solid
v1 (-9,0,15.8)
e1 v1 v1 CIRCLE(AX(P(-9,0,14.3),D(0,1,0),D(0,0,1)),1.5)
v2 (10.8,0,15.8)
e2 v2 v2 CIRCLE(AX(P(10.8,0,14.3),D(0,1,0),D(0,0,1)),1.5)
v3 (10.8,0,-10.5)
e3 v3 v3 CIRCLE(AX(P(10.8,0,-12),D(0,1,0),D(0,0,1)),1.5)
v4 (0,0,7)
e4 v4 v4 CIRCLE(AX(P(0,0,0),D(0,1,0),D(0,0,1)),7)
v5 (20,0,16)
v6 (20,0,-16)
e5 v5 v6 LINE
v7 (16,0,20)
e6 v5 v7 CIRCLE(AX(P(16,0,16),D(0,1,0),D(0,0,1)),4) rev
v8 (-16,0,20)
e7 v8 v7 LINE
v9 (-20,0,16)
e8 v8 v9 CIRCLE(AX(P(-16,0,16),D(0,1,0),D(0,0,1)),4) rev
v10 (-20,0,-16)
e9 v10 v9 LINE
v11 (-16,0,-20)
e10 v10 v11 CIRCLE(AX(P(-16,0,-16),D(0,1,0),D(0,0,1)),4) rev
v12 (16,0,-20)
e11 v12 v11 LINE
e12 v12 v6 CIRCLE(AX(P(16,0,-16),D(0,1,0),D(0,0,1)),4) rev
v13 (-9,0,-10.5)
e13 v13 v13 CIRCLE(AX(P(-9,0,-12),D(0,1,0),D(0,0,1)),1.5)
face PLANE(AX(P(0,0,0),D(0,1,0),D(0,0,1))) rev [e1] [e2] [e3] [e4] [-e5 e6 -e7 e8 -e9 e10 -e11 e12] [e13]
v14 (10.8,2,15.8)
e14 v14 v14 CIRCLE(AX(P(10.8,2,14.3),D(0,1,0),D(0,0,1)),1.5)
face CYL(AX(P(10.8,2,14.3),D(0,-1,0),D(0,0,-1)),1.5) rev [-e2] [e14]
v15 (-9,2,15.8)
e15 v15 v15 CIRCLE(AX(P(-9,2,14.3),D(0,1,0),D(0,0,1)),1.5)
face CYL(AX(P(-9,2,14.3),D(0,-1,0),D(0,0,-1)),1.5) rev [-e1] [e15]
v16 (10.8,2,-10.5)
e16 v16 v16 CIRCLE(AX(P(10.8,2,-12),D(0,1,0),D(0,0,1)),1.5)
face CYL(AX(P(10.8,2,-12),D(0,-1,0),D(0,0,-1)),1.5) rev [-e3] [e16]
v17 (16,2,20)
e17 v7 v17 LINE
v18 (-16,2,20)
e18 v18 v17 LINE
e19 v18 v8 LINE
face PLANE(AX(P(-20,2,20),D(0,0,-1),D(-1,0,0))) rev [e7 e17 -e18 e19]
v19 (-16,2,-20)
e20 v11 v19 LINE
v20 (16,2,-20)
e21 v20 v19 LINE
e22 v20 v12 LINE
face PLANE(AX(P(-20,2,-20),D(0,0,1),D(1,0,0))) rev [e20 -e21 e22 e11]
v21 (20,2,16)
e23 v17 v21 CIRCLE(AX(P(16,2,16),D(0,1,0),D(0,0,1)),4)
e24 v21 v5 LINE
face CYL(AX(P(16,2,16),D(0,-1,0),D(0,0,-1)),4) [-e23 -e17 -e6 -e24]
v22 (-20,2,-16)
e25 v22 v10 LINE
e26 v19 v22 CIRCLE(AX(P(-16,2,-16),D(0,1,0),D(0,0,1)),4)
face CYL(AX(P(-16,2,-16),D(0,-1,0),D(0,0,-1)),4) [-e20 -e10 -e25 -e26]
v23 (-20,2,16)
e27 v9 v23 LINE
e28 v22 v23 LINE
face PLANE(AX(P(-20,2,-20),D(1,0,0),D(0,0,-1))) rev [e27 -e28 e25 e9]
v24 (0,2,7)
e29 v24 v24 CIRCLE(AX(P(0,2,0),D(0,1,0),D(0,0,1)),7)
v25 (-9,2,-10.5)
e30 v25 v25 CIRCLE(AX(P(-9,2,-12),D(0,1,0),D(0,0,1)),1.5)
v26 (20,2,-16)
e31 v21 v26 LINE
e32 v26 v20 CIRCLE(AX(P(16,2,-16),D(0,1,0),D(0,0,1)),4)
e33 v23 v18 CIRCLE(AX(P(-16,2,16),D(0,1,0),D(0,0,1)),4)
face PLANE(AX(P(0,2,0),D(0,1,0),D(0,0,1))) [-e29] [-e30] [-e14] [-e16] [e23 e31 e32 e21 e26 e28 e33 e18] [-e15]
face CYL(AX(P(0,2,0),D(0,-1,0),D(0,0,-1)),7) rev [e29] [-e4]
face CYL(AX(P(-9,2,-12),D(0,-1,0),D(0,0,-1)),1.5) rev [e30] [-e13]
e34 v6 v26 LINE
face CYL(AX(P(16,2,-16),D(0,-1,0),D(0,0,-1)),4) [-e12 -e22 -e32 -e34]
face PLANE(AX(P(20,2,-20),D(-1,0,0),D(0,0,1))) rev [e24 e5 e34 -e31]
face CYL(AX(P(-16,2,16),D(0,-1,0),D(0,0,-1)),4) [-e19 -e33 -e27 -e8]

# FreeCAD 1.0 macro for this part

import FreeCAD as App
import Part
import Sketcher

V = App.Vector


def edges_at(feature, points):
    """Names of the edges that pass closest to the given points."""
    edges = feature.Shape.Edges
    near = lambda p: min(range(len(edges)), key=lambda i: edges[i].distToShape(Part.Vertex(*p))[0])
    return sorted({f"Edge{near(p) + 1}" for p in points})

doc = App.newDocument("Part")
body = doc.addObject("PartDesign::Body", "Body")

# Sketch on XZ plane
sketch1 = body.newObject("Sketcher::SketchObject", "Sketch")
sketch1.AttachmentSupport = (doc.getObject("XZ_Plane"), [""])
sketch1.MapMode = "FlatFace"
sketch1.addGeometry([
    Part.LineSegment(V(-20, -20, 0), V(-20, 20, 0)),  # 0
    Part.LineSegment(V(-20, 20, 0), V(20, 20, 0)),  # 1
    Part.LineSegment(V(20, 20, 0), V(20, -20, 0)),  # 2
    Part.LineSegment(V(20, -20, 0), V(-20, -20, 0)),  # 3
    Part.Circle(V(-9, 14.3, 0), V(0, 0, 1), 1.5),  # 4
    Part.Circle(V(10.8, 14.3, 0), V(0, 0, 1), 1.5),  # 5
    Part.Circle(V(0, 0, 0), V(0, 0, 1), 7),  # 6
    Part.Circle(V(-9, -12, 0), V(0, 0, 1), 1.5),  # 7
    Part.Circle(V(10.8, -12, 0), V(0, 0, 1), 1.5),  # 8
], False)
sketch1.addConstraint([
    Sketcher.Constraint("Coincident", 0, 2, 1, 1),
    Sketcher.Constraint("Coincident", 1, 2, 2, 1),
    Sketcher.Constraint("Coincident", 2, 2, 3, 1),
    Sketcher.Constraint("Coincident", 3, 2, 0, 1),
    Sketcher.Constraint("Vertical", 0),
    Sketcher.Constraint("Horizontal", 1),
    Sketcher.Constraint("Vertical", 2),
    Sketcher.Constraint("Horizontal", 3),
    Sketcher.Constraint("Coincident", 6, 3, -1, 1),
    Sketcher.Constraint("Equal", 4, 5),
    Sketcher.Constraint("Equal", 5, 7),
    Sketcher.Constraint("Equal", 7, 8),
    Sketcher.Constraint("Symmetric", 0, 2, 2, 2, -1, 1),
    Sketcher.Constraint("Horizontal", 4, 3, 5, 3),
    Sketcher.Constraint("Horizontal", 7, 3, 8, 3),
    Sketcher.Constraint("Vertical", 4, 3, 7, 3),
    Sketcher.Constraint("Vertical", 5, 3, 8, 3),
    Sketcher.Constraint("Equal", 3, 0),
    Sketcher.Constraint("Diameter", 4, 3.0),
    Sketcher.Constraint("Diameter", 6, 14.0),
    Sketcher.Constraint("DistanceX", 1, 1, 1, 2, 40.0),
    Sketcher.Constraint("DistanceX", 4, 3, -1, 1, 9.0),
    Sketcher.Constraint("DistanceY", 7, 3, -1, 1, 12.0),
    Sketcher.Constraint("DistanceY", -1, 1, 4, 3, 14.3),
    Sketcher.Constraint("DistanceX", -1, 1, 5, 3, 10.8),
])
pad1 = body.newObject("PartDesign::Pad", "Pad")
pad1.Profile = sketch1
pad1.Length = 2
pad1.Reversed = True
doc.recompute()

fillet = body.newObject("PartDesign::Fillet", "Fillet")
fillet.Base = (pad1, edges_at(pad1, [
    (20, 1, 20),
    (-20, 1, 20),
    (-20, 1, -20),
    (20, 1, -20),
]))
fillet.Radius = 4

doc.recompute()
